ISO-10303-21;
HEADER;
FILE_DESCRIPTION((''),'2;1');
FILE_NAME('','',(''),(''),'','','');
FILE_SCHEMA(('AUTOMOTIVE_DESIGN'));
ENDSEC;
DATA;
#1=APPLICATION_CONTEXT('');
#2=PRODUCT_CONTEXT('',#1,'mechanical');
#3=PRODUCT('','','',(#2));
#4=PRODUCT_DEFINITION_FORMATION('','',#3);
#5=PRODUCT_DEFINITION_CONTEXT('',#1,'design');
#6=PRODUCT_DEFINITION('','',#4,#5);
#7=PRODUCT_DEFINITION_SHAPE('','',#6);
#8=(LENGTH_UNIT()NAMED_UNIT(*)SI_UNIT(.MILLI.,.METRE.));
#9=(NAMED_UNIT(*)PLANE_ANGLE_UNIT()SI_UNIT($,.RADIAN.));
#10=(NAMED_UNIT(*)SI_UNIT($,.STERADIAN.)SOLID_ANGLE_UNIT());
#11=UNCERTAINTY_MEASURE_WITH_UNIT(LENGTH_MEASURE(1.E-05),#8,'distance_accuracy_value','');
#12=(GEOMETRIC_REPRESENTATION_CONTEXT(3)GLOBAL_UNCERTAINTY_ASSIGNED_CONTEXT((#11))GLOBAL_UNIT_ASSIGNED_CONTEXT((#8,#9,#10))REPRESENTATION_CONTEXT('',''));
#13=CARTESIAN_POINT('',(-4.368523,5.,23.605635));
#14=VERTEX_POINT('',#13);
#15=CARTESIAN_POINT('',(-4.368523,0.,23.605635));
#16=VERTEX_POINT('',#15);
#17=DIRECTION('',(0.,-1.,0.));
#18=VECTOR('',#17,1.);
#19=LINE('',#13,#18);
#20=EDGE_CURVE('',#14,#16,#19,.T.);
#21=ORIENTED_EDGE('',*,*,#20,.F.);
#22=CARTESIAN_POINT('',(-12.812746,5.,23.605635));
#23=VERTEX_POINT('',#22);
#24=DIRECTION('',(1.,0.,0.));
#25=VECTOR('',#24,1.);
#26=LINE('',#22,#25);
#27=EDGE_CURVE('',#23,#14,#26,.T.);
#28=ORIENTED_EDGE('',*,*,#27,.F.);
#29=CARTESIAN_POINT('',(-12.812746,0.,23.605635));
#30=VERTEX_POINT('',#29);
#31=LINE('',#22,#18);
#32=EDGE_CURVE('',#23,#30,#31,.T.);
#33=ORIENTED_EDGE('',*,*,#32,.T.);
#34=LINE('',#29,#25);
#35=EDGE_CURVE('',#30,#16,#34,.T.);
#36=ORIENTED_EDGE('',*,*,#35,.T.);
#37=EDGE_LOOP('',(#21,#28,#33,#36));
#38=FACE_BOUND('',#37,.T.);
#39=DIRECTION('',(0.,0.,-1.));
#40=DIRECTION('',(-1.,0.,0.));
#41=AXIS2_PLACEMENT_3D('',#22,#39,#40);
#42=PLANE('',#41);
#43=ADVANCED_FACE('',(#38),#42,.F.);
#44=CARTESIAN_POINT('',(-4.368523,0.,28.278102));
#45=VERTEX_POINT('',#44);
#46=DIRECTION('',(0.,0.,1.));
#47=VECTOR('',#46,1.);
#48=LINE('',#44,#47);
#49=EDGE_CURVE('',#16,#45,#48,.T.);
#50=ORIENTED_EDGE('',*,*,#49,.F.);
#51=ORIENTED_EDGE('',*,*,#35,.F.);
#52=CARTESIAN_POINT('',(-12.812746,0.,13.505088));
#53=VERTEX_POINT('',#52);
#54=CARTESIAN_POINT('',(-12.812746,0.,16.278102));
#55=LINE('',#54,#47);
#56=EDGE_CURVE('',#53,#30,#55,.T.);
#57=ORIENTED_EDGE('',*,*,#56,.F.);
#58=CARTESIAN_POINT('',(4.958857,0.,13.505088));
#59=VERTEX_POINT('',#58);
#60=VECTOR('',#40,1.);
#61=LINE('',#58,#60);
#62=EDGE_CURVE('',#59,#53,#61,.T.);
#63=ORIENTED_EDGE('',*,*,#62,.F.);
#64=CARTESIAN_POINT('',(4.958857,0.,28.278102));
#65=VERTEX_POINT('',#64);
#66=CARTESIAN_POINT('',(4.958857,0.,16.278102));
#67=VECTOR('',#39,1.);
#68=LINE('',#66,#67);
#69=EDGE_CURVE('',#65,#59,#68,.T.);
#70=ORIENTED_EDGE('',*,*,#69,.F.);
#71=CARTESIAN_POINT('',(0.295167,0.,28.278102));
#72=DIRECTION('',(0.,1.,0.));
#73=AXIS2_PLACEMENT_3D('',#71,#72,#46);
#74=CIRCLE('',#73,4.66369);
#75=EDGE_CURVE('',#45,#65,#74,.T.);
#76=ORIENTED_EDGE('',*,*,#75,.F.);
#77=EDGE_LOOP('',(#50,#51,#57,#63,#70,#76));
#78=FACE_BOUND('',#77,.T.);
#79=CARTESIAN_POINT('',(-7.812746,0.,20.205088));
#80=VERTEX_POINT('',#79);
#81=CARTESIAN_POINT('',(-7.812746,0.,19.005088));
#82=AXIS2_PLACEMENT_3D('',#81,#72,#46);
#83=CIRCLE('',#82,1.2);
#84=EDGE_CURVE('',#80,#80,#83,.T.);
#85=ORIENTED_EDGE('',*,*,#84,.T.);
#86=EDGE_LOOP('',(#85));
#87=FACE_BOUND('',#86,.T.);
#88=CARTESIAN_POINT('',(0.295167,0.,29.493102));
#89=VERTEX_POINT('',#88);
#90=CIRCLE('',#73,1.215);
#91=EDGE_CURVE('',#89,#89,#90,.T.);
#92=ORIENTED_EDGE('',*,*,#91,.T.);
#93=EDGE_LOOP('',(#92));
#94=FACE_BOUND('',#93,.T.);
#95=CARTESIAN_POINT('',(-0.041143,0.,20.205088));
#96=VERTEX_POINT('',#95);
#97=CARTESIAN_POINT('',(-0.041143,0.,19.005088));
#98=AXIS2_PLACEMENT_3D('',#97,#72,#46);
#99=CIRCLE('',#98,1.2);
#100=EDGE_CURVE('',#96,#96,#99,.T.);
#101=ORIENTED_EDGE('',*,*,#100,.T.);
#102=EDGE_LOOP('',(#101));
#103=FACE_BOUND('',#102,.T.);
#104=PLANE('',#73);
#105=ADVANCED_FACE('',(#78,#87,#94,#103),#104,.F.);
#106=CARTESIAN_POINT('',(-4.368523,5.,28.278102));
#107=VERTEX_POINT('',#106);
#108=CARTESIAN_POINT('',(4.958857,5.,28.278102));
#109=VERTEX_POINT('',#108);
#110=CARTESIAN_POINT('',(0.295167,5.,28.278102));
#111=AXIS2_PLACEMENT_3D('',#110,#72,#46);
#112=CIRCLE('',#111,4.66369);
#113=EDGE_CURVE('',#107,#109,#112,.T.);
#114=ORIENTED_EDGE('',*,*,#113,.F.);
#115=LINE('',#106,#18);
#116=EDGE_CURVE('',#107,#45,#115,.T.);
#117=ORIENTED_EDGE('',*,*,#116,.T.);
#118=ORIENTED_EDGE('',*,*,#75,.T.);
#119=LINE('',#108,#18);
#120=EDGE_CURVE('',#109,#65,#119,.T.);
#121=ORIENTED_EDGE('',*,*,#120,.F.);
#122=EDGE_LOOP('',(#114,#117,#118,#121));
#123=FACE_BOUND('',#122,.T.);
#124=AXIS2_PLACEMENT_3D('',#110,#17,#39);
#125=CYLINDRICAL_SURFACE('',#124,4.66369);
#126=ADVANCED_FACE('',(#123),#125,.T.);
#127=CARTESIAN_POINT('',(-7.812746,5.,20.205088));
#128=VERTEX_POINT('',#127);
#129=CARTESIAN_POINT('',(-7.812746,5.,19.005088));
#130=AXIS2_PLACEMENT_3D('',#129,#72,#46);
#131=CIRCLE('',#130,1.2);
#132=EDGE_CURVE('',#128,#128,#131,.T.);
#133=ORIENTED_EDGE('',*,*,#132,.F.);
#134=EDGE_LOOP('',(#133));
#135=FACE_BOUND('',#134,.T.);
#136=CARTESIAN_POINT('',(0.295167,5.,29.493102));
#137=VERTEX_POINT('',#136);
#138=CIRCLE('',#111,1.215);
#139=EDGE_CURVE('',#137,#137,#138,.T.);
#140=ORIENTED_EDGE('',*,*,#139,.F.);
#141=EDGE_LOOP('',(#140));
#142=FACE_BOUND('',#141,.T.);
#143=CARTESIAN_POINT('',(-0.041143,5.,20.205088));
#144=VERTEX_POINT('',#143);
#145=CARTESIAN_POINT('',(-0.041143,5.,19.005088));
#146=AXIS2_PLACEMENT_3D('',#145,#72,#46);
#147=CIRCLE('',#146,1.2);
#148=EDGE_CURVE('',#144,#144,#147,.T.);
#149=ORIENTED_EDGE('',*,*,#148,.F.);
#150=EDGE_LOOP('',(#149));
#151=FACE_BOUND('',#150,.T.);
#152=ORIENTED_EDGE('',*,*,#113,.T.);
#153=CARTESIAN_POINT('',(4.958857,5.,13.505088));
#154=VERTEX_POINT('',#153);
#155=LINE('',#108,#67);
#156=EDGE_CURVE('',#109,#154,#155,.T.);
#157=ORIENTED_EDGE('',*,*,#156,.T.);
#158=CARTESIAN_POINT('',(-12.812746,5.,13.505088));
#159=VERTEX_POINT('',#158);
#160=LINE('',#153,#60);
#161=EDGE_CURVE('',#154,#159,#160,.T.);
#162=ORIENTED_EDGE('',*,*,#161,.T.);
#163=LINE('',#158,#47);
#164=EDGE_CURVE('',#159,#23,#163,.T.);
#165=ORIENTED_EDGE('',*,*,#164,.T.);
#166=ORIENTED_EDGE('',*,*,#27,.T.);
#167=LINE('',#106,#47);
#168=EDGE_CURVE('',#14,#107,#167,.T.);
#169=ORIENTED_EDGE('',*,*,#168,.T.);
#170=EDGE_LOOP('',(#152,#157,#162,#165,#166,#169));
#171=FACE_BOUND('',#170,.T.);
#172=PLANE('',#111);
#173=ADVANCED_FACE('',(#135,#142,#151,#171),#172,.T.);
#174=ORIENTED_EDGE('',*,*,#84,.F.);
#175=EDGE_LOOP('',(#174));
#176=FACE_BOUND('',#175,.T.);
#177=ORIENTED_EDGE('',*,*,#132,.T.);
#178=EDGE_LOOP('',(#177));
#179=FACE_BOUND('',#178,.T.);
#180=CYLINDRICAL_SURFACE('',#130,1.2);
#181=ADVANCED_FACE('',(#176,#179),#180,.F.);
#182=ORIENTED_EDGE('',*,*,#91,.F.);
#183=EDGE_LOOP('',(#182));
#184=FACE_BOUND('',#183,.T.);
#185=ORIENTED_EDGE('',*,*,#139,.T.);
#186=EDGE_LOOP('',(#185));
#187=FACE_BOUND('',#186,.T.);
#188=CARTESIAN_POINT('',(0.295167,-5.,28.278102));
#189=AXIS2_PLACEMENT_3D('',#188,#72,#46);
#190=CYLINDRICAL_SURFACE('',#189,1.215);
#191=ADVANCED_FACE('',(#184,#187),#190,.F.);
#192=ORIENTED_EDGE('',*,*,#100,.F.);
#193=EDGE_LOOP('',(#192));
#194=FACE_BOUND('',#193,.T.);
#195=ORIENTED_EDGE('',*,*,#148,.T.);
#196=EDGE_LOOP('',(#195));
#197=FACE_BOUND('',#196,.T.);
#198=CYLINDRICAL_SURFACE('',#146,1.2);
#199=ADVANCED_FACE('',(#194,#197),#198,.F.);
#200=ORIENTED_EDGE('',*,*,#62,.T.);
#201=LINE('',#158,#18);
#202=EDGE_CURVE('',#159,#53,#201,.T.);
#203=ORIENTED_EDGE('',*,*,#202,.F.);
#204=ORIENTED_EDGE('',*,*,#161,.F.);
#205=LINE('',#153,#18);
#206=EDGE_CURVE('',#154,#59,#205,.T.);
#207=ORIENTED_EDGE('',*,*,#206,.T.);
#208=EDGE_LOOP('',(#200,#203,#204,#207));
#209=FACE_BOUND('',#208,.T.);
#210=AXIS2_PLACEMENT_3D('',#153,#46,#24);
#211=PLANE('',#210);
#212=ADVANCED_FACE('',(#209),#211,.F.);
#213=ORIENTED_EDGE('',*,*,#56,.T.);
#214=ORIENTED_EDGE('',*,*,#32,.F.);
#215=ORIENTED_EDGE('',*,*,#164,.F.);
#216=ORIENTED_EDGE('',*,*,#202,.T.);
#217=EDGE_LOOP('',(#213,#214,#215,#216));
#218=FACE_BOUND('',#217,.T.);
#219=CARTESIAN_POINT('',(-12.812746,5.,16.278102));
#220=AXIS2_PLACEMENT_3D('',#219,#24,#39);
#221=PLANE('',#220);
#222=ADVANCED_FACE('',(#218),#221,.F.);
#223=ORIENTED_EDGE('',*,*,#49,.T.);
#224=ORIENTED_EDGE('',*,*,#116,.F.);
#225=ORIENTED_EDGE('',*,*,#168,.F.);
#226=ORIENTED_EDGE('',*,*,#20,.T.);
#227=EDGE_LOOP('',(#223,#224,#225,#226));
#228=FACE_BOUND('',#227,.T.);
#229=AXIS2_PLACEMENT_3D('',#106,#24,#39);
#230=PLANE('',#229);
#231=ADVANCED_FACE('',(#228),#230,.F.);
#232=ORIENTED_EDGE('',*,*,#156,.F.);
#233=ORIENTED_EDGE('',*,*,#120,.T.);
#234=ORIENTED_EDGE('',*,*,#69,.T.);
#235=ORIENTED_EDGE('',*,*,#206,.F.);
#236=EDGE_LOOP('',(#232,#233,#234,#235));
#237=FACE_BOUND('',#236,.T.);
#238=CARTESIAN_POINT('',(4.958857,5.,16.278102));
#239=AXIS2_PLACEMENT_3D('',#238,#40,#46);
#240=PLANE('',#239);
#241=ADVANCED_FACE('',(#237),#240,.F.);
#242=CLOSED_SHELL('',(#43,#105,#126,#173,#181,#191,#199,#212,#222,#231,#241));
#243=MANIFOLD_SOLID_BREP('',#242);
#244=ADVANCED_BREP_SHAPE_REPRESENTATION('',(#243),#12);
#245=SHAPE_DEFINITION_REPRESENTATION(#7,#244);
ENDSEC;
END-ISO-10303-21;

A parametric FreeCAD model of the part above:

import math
import FreeCAD as App
import Part
import Sketcher
from FreeCAD import Vector

doc = App.newDocument("Part")
body = doc.addObject("PartDesign::Body", "Body")

# Sketch on XZ plane
sketch1 = doc.addObject("Sketcher::SketchObject", "Sketch")
body.addObject(sketch1)
sketch1.AttachmentSupport = (doc.XZ_Plane, [""])
sketch1.MapMode = "FlatFace"
sketch1.addGeometry([
    Part.LineSegment(Vector(4.958857, 28.278102, 0), Vector(4.958857, 13.505088, 0)),  # 0
    Part.LineSegment(Vector(4.958857, 13.505088, 0), Vector(-12.812746, 13.505088, 0)),  # 1
    Part.LineSegment(Vector(-12.812746, 13.505088, 0), Vector(-12.812746, 23.605635, 0)),  # 2
    Part.LineSegment(Vector(-12.812746, 23.605635, 0), Vector(-4.368523, 23.605635, 0)),  # 3
    Part.LineSegment(Vector(-4.368523, 23.605635, 0), Vector(-4.368523, 28.278102, 0)),  # 4
    Part.ArcOfCircle(Part.Circle(Vector(0.295167, 28.278102, 0), Vector(0, 0, 1), 4.66369), math.radians(0), math.radians(180)),  # 5
], False)
sketch1.addConstraint([
    Sketcher.Constraint("Coincident", 0, 2, 1, 1),
    Sketcher.Constraint("Coincident", 1, 2, 2, 1),
    Sketcher.Constraint("Coincident", 2, 2, 3, 1),
    Sketcher.Constraint("Coincident", 3, 2, 4, 1),
    Sketcher.Constraint("Tangent", 4, 2, 5, 2),
    Sketcher.Constraint("Tangent", 5, 1, 0, 1),
    Sketcher.Constraint("Vertical", 0),
    Sketcher.Constraint("Horizontal", 1),
    Sketcher.Constraint("Vertical", 2),
    Sketcher.Constraint("Horizontal", 3),
    Sketcher.Constraint("Vertical", 4),
    Sketcher.Constraint("Radius", 5, 4.66369),
    Sketcher.Constraint("DistanceY", -1, 1, 5, 3, 28.278102),
    Sketcher.Constraint("DistanceX", 1, 2, 1, 1, 17.771602),
    Sketcher.Constraint("DistanceY", 0, 2, 0, 1, 14.773014),
    Sketcher.Constraint("DistanceY", 2, 1, 2, 2, 10.100547),
    Sketcher.Constraint("DistanceX", -1, 1, 5, 3, 0.295167),
])
pad1 = doc.addObject("PartDesign::Pad", "Pad")
body.addObject(pad1)
pad1.Profile = sketch1
pad1.Length = 5
pad1.Reversed = True

# Sketch on XZ plane
sketch2 = doc.addObject("Sketcher::SketchObject", "Sketch001")
body.addObject(sketch2)
sketch2.AttachmentSupport = (doc.XZ_Plane, [""])
sketch2.MapMode = "FlatFace"
sketch2.AttachmentOffset = App.Placement(Vector(0, 0, -5), App.Rotation())
sketch2.addGeometry([
    Part.Circle(Vector(-0.041143, 19.005088, 0), Vector(0, 0, 1), 1.2),
    Part.Circle(Vector(-7.812746, 19.005088, 0), Vector(0, 0, 1), 1.2),
], False)
sketch2.addConstraint([
    Sketcher.Constraint("Equal", 0, 1),
    Sketcher.Constraint("Horizontal", 0, 3, 1, 3),
    Sketcher.Constraint("Diameter", 0, 2.4),
    Sketcher.Constraint("DistanceX", 0, 3, -1, 1, 0.041143),
    Sketcher.Constraint("DistanceY", -1, 1, 0, 3, 19.005088),
    Sketcher.Constraint("DistanceX", 1, 3, -1, 1, 7.812746),
])
doc.recompute()
hole = doc.addObject("PartDesign::Hole", "Hole")
body.addObject(hole)
hole.Profile = sketch2
hole.ThreadType = "None"
hole.Diameter = 2.4
hole.DepthType = "Dimension"
hole.Depth = 12
hole.DrillPoint = "Angled"
hole.DrillPointAngle = 118
hole.Reversed = True

# Sketch on XZ plane
sketch3 = doc.addObject("Sketcher::SketchObject", "Sketch002")
body.addObject(sketch3)
sketch3.AttachmentSupport = (doc.XZ_Plane, [""])
sketch3.MapMode = "FlatFace"
sketch3.AttachmentOffset = App.Placement(Vector(0, 0, -5), App.Rotation())
sketch3.addGeometry(Part.Circle(Vector(0.295167, 28.278102, 0), Vector(0, 0, 1), 1.215), False)
sketch3.addConstraint([
    Sketcher.Constraint("Diameter", 0, 2.43),
    Sketcher.Constraint("DistanceY", -1, 1, 0, 3, 28.278102),
    Sketcher.Constraint("DistanceX", -1, 1, 0, 3, 0.295167),
])
pocket1 = doc.addObject("PartDesign::Pocket", "Pocket")
body.addObject(pocket1)
pocket1.Profile = sketch3
pocket1.Length = 10
pocket1.Reversed = True

doc.recompute()
